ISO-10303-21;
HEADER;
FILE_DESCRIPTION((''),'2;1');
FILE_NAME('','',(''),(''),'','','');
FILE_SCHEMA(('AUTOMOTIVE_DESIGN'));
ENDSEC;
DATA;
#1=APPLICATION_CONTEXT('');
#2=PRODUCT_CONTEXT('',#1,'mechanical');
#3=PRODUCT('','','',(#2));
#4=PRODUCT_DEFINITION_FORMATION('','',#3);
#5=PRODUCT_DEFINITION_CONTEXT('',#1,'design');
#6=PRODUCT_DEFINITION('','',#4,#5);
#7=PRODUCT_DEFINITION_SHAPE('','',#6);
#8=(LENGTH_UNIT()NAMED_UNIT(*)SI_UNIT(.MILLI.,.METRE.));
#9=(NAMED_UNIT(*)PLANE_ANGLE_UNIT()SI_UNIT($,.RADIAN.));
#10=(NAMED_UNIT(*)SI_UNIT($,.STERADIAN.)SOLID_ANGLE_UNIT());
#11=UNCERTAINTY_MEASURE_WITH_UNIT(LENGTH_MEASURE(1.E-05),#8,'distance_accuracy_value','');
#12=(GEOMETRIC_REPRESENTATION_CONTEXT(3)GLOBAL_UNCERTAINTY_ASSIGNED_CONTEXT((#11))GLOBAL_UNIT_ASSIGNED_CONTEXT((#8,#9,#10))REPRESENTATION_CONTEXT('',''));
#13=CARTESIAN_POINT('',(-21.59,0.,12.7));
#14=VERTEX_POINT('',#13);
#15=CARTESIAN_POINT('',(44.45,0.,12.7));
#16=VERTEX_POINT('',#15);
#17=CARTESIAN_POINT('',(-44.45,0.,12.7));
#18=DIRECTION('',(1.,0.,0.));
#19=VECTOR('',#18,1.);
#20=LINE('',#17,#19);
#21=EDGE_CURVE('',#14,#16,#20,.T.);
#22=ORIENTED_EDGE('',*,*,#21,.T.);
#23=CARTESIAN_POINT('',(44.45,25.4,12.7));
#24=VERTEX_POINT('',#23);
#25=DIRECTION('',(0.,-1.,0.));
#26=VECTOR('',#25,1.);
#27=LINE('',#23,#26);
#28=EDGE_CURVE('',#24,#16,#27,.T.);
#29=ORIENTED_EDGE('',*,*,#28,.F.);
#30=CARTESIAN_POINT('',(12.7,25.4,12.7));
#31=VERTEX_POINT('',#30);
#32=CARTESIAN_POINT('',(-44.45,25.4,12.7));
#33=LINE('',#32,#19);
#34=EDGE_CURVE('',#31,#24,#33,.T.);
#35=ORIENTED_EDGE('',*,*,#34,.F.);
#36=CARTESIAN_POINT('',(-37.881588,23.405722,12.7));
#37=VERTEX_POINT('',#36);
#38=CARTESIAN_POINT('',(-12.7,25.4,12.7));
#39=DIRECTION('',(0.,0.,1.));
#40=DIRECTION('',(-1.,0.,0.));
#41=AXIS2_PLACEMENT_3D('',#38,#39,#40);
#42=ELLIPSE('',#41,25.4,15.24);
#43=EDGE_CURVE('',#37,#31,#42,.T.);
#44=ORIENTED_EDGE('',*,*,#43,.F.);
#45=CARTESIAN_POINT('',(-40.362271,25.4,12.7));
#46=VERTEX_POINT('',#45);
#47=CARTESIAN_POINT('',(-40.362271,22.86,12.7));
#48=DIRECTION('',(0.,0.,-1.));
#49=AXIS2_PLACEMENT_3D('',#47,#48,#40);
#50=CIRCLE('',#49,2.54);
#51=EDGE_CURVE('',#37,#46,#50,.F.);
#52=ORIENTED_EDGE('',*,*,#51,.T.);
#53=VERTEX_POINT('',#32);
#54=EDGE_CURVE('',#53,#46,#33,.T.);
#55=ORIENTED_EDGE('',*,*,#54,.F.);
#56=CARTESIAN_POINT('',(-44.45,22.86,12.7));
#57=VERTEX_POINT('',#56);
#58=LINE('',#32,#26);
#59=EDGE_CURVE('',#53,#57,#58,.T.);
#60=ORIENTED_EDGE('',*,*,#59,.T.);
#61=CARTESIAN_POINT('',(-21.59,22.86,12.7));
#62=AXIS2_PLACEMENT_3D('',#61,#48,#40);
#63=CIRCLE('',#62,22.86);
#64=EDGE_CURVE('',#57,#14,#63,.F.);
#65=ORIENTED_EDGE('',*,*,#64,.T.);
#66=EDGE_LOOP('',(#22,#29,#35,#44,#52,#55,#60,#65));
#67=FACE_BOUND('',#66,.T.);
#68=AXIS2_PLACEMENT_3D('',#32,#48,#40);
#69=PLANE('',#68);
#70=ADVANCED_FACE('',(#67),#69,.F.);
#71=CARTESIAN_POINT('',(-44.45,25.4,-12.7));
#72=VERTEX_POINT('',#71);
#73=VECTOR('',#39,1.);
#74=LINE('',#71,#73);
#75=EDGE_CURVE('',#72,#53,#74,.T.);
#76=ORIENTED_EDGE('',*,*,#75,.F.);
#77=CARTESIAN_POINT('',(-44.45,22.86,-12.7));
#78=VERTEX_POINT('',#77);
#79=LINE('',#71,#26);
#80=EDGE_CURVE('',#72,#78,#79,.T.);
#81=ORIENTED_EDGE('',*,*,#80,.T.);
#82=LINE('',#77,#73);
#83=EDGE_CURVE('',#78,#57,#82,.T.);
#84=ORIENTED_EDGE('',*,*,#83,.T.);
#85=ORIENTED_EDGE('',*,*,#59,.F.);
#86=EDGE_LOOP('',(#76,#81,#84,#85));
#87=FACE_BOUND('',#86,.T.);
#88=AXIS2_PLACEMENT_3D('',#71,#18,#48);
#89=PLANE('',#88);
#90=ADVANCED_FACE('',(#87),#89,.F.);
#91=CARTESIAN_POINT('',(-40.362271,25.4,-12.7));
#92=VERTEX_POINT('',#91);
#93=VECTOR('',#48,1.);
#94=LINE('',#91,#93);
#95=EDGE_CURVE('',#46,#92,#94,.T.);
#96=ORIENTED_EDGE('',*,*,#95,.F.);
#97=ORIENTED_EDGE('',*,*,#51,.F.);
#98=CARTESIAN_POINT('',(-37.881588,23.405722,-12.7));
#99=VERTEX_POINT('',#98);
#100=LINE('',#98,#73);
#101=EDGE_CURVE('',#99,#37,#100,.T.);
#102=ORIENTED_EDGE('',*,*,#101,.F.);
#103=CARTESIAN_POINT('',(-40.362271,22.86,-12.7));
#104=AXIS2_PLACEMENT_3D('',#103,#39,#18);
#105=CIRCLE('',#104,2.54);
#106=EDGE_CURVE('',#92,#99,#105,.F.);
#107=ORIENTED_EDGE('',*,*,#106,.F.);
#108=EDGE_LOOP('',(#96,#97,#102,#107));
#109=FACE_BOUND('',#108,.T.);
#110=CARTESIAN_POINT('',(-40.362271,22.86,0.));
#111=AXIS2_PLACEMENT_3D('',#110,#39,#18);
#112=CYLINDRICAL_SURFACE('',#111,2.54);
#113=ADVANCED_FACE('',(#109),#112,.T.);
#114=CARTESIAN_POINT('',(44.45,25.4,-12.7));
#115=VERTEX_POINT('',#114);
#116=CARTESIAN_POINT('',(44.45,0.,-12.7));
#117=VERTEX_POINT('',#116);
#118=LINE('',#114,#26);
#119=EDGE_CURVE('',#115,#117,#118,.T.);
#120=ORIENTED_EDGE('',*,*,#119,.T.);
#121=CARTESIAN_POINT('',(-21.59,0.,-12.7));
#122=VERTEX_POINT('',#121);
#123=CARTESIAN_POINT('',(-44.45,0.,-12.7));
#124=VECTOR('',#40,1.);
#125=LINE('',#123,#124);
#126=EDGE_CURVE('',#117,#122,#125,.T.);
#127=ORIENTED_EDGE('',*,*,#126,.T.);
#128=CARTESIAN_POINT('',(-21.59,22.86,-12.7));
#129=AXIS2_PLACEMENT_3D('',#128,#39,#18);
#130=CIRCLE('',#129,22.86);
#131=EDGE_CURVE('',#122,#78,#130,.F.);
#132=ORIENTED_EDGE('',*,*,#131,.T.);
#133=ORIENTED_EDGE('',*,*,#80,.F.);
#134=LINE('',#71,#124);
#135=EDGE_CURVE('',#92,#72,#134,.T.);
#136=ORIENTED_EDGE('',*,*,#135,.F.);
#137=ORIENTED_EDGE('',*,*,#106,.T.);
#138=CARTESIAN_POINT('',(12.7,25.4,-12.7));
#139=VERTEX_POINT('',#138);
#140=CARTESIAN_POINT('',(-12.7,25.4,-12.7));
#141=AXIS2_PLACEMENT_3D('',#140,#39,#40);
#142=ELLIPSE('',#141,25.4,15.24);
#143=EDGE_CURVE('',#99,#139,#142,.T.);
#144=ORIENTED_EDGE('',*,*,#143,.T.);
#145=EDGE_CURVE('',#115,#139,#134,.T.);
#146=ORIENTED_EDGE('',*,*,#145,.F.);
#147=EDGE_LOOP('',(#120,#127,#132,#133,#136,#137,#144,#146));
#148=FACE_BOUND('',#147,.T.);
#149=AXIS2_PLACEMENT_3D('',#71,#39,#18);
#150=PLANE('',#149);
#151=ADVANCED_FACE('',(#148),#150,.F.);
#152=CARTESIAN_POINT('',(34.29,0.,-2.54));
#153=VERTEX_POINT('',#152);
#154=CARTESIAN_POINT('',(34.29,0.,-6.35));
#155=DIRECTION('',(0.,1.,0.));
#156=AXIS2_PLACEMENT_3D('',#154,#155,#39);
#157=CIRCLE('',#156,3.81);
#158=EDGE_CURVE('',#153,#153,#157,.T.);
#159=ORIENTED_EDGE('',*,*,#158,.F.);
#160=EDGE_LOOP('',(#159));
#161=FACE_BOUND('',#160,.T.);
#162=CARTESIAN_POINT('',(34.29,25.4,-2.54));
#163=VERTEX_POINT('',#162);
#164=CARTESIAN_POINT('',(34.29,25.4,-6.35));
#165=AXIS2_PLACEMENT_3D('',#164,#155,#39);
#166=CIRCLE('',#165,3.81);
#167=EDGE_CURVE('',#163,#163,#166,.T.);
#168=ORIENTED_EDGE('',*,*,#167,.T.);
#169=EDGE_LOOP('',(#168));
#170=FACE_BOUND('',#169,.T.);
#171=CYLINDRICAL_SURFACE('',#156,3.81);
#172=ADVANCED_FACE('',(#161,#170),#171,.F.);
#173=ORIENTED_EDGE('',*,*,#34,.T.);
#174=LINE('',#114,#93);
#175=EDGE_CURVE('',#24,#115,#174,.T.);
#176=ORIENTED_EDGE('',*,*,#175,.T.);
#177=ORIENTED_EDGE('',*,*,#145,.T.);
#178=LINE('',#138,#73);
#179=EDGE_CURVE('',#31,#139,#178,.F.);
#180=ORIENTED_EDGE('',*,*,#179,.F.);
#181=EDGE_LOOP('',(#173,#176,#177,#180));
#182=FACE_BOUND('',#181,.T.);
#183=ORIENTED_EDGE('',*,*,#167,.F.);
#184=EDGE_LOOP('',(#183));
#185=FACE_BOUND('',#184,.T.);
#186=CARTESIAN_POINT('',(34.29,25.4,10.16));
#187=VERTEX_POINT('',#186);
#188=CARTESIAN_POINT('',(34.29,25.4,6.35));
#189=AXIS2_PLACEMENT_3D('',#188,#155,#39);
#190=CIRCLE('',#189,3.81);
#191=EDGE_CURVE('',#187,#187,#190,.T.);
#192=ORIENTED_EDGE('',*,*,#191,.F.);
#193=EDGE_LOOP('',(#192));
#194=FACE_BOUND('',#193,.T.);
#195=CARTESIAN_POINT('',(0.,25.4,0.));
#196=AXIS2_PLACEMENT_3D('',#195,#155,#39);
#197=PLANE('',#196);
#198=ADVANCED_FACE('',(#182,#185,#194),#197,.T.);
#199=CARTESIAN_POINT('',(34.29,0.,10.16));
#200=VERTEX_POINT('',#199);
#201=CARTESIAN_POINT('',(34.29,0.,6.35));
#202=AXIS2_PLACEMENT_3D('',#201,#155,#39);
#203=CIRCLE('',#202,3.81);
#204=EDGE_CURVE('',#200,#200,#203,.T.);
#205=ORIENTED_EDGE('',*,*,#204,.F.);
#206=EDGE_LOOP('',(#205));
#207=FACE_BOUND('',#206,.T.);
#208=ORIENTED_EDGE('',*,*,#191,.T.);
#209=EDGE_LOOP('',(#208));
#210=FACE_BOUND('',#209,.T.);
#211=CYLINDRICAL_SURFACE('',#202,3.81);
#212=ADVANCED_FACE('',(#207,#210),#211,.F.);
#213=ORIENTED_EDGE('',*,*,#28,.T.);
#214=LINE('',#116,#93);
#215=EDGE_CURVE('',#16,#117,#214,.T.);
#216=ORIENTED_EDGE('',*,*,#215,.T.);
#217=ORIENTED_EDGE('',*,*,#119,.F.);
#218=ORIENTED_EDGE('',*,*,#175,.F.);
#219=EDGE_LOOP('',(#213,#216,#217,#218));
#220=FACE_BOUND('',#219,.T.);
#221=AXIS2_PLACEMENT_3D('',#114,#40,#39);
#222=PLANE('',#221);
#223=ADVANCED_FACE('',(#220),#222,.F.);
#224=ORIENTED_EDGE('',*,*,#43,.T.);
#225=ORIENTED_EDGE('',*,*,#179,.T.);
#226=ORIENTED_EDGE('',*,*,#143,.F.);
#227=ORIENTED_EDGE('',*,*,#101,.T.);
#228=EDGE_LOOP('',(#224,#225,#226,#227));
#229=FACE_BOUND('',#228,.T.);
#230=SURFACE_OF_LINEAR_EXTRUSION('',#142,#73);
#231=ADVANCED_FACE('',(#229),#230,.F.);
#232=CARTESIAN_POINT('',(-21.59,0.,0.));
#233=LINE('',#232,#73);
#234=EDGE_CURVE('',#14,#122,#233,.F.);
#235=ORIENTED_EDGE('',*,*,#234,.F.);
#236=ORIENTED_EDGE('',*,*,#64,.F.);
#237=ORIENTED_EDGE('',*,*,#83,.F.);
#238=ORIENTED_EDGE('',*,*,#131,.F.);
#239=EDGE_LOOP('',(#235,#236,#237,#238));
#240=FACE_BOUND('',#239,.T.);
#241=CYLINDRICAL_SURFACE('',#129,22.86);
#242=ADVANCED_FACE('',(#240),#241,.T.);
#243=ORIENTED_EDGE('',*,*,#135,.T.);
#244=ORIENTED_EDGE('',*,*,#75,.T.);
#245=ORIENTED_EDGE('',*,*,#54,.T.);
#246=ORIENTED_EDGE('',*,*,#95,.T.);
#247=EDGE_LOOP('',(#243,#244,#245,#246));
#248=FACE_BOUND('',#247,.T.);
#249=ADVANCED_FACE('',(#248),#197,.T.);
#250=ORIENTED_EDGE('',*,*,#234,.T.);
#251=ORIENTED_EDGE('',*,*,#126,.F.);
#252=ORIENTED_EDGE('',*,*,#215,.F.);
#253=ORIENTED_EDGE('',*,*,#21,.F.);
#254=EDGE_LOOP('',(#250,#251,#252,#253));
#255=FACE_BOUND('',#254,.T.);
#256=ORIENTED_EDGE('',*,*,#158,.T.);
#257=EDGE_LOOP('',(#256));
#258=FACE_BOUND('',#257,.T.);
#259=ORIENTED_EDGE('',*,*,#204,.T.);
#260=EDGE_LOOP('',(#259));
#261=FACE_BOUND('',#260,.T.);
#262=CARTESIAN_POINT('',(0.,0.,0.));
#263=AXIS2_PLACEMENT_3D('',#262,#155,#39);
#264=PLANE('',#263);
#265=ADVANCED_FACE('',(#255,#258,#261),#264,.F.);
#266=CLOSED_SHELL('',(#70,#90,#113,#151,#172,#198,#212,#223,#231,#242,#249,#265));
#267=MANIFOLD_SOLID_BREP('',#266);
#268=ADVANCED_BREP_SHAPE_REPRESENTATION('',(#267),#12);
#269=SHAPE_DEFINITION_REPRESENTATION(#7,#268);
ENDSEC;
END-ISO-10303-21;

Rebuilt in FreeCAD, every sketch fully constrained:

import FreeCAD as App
import Part
import Sketcher
Q = App.Units.Quantity


def edges_at(feature, points):
    """Names of the edges that pass closest to the given points."""
    edges = feature.Shape.Edges
    near = lambda p: min(range(len(edges)), key=lambda i: edges[i].distToShape(Part.Vertex(*p))[0])
    return sorted({f"Edge{near(p) + 1}" for p in points})

doc = App.newDocument("Part")
body = doc.addObject("PartDesign::Body", "Body")

sketch1 = body.newObject("Sketcher::SketchObject", "Sketch")
sketch1.AttachmentSupport = (doc.getObject("XZ_Plane"), [""])
sketch1.MapMode = "FlatFace"
sketch1.addGeometry([
    Part.LineSegment(App.Vector(-44.45, -12.7, 0), App.Vector(-44.45, 12.7, 0)),
    Part.LineSegment(App.Vector(-44.45, 12.7, 0), App.Vector(44.45, 12.7, 0)),
    Part.LineSegment(App.Vector(44.45, 12.7, 0), App.Vector(44.45, -12.7, 0)),
    Part.LineSegment(App.Vector(44.45, -12.7, 0), App.Vector(-44.45, -12.7, 0)),
], False)
sketch1.addConstraint([
    Sketcher.Constraint("Coincident", 0, 2, 1, 1),
    Sketcher.Constraint("Coincident", 1, 2, 2, 1),
    Sketcher.Constraint("Coincident", 2, 2, 3, 1),
    Sketcher.Constraint("Coincident", 3, 2, 0, 1),
    Sketcher.Constraint("Vertical", 0),
    Sketcher.Constraint("Horizontal", 1),
    Sketcher.Constraint("Vertical", 2),
    Sketcher.Constraint("Horizontal", 3),
    Sketcher.Constraint("Symmetric", 0, 2, 2, 2, -1, 1),
    Sketcher.Constraint("DistanceY", 0, 1, 0, 2, Q("1 in")),
    Sketcher.Constraint("DistanceX", 1, 1, 1, 2, Q("3.5 in")),
])
pad1 = body.newObject("PartDesign::Pad", "Pad")
pad1.Profile = sketch1
pad1.Length = Q("1 in")
pad1.Reversed = True

sketch2 = body.newObject("Sketcher::SketchObject", "Sketch001")
sketch2.AttachmentSupport = (doc.getObject("XY_Plane"), [""])
sketch2.MapMode = "FlatFace"
sketch2.AttachmentOffset = App.Placement(App.Vector(0, 0, 0.5 * 25.4), App.Rotation())
sketch2.addGeometry(Part.Ellipse(App.Vector(-38.1, 25.4, 0), App.Vector(-12.7, 10.16, 0), App.Vector(-12.7, 25.4, 0)), False)
sketch2.addConstraint(Sketcher.Constraint("Block", 0))
pocket1 = body.newObject("PartDesign::Pocket", "Pocket")
pocket1.Profile = sketch2
pocket1.Type = "ThroughAll"
doc.recompute()

fillet = body.newObject("PartDesign::Fillet", "Fillet")
fillet.Base = (pocket1, edges_at(pocket1, [(-38.1, 25.4, 0)]))
fillet.Radius = Q("0.1 in")

sketch3 = body.newObject("Sketcher::SketchObject", "Sketch002")
sketch3.AttachmentSupport = (doc.getObject("XZ_Plane"), [""])
sketch3.MapMode = "FlatFace"
sketch3.AttachmentOffset = App.Placement(App.Vector(0, 0, -1 * 25.4), App.Rotation())
sketch3.addGeometry([
    Part.Circle(App.Vector(34.29, -6.35, 0), App.Vector(0, 0, 1), 3.81),
    Part.Circle(App.Vector(34.29, 6.35, 0), App.Vector(0, 0, 1), 3.81),
], False)
sketch3.addConstraint([
    Sketcher.Constraint("Equal", 0, 1),
    Sketcher.Constraint("Symmetric", 0, 3, 1, 3, -1),
    Sketcher.Constraint("Diameter", 0, Q("0.3 in")),
    Sketcher.Constraint("DistanceY", 0, 3, 1, 3, Q("0.5 in")),
    Sketcher.Constraint("DistanceX", -1, 1, 0, 3, Q("1.35 in")),
])
pocket2 = body.newObject("PartDesign::Pocket", "Pocket001")
pocket2.Profile = sketch3
pocket2.Type = "ThroughAll"
pocket2.Reversed = True
doc.recompute()

fillet2 = body.newObject("PartDesign::Fillet", "Fillet001")
fillet2.Base = (pocket2, edges_at(pocket2, [(-44.45, 0, 0)]))
fillet2.Radius = Q("0.9 in")

doc.recompute()
